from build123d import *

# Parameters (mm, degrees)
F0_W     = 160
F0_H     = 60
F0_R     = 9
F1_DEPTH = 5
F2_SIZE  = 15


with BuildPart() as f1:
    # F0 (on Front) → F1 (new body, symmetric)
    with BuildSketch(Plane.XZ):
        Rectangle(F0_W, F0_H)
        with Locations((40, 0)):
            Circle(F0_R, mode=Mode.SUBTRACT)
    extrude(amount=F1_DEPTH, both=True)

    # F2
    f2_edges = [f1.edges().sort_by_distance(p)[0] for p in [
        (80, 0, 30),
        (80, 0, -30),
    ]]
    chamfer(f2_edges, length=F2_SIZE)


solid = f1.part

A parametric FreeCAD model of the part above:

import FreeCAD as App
import Part
import Sketcher
Q = App.Units.Quantity


def edges_at(feature, points):
    """Names of the edges that pass closest to the given points."""
    edges = feature.Shape.Edges
    near = lambda p: min(range(len(edges)), key=lambda i: edges[i].distToShape(Part.Vertex(*p))[0])
    return sorted({f"Edge{near(p) + 1}" for p in points})

doc = App.newDocument("Part")
body = doc.addObject("PartDesign::Body", "Body")

sketch1 = body.newObject("Sketcher::SketchObject", "Sketch")
sketch1.AttachmentSupport = (doc.getObject("XZ_Plane"), [""])
sketch1.MapMode = "FlatFace"
sketch1.addGeometry([
    Part.LineSegment(App.Vector(-80, 30, 0), App.Vector(-80, -30, 0)),
    Part.LineSegment(App.Vector(-80, -30, 0), App.Vector(80, -30, 0)),
    Part.LineSegment(App.Vector(80, -30, 0), App.Vector(80, 30, 0)),
    Part.LineSegment(App.Vector(80, 30, 0), App.Vector(-80, 30, 0)),
    Part.Circle(App.Vector(40, 0, 0), App.Vector(0, 0, 1), 9),
], False)
sketch1.addConstraint([
    Sketcher.Constraint("Coincident", 0, 2, 1, 1),
    Sketcher.Constraint("Coincident", 1, 2, 2, 1),
    Sketcher.Constraint("Coincident", 2, 2, 3, 1),
    Sketcher.Constraint("Coincident", 3, 2, 0, 1),
    Sketcher.Constraint("Vertical", 0),
    Sketcher.Constraint("Horizontal", 1),
    Sketcher.Constraint("Vertical", 2),
    Sketcher.Constraint("Horizontal", 3),
    Sketcher.Constraint("Symmetric", 0, 2, 2, 2, -1, 1),
    Sketcher.Constraint("PointOnObject", 4, 3, -1),
    Sketcher.Constraint("Diameter", 4, Q("18 mm")),
    Sketcher.Constraint("DistanceX", 1, 1, 1, 2, Q("160 mm")),
    Sketcher.Constraint("DistanceY", 0, 2, 0, 1, Q("60 mm")),
    Sketcher.Constraint("DistanceX", -1, 1, 4, 3, Q("40 mm")),
])
pad1 = body.newObject("PartDesign::Pad", "Pad")
pad1.Profile = sketch1
pad1.Length = 10
pad1.Midplane = True
doc.recompute()

chamfer = body.newObject("PartDesign::Chamfer", "Chamfer")
chamfer.Base = (pad1, edges_at(pad1, [(80, 0, 30), (80, 0, -30)]))
chamfer.Size = 15

doc.recompute()
